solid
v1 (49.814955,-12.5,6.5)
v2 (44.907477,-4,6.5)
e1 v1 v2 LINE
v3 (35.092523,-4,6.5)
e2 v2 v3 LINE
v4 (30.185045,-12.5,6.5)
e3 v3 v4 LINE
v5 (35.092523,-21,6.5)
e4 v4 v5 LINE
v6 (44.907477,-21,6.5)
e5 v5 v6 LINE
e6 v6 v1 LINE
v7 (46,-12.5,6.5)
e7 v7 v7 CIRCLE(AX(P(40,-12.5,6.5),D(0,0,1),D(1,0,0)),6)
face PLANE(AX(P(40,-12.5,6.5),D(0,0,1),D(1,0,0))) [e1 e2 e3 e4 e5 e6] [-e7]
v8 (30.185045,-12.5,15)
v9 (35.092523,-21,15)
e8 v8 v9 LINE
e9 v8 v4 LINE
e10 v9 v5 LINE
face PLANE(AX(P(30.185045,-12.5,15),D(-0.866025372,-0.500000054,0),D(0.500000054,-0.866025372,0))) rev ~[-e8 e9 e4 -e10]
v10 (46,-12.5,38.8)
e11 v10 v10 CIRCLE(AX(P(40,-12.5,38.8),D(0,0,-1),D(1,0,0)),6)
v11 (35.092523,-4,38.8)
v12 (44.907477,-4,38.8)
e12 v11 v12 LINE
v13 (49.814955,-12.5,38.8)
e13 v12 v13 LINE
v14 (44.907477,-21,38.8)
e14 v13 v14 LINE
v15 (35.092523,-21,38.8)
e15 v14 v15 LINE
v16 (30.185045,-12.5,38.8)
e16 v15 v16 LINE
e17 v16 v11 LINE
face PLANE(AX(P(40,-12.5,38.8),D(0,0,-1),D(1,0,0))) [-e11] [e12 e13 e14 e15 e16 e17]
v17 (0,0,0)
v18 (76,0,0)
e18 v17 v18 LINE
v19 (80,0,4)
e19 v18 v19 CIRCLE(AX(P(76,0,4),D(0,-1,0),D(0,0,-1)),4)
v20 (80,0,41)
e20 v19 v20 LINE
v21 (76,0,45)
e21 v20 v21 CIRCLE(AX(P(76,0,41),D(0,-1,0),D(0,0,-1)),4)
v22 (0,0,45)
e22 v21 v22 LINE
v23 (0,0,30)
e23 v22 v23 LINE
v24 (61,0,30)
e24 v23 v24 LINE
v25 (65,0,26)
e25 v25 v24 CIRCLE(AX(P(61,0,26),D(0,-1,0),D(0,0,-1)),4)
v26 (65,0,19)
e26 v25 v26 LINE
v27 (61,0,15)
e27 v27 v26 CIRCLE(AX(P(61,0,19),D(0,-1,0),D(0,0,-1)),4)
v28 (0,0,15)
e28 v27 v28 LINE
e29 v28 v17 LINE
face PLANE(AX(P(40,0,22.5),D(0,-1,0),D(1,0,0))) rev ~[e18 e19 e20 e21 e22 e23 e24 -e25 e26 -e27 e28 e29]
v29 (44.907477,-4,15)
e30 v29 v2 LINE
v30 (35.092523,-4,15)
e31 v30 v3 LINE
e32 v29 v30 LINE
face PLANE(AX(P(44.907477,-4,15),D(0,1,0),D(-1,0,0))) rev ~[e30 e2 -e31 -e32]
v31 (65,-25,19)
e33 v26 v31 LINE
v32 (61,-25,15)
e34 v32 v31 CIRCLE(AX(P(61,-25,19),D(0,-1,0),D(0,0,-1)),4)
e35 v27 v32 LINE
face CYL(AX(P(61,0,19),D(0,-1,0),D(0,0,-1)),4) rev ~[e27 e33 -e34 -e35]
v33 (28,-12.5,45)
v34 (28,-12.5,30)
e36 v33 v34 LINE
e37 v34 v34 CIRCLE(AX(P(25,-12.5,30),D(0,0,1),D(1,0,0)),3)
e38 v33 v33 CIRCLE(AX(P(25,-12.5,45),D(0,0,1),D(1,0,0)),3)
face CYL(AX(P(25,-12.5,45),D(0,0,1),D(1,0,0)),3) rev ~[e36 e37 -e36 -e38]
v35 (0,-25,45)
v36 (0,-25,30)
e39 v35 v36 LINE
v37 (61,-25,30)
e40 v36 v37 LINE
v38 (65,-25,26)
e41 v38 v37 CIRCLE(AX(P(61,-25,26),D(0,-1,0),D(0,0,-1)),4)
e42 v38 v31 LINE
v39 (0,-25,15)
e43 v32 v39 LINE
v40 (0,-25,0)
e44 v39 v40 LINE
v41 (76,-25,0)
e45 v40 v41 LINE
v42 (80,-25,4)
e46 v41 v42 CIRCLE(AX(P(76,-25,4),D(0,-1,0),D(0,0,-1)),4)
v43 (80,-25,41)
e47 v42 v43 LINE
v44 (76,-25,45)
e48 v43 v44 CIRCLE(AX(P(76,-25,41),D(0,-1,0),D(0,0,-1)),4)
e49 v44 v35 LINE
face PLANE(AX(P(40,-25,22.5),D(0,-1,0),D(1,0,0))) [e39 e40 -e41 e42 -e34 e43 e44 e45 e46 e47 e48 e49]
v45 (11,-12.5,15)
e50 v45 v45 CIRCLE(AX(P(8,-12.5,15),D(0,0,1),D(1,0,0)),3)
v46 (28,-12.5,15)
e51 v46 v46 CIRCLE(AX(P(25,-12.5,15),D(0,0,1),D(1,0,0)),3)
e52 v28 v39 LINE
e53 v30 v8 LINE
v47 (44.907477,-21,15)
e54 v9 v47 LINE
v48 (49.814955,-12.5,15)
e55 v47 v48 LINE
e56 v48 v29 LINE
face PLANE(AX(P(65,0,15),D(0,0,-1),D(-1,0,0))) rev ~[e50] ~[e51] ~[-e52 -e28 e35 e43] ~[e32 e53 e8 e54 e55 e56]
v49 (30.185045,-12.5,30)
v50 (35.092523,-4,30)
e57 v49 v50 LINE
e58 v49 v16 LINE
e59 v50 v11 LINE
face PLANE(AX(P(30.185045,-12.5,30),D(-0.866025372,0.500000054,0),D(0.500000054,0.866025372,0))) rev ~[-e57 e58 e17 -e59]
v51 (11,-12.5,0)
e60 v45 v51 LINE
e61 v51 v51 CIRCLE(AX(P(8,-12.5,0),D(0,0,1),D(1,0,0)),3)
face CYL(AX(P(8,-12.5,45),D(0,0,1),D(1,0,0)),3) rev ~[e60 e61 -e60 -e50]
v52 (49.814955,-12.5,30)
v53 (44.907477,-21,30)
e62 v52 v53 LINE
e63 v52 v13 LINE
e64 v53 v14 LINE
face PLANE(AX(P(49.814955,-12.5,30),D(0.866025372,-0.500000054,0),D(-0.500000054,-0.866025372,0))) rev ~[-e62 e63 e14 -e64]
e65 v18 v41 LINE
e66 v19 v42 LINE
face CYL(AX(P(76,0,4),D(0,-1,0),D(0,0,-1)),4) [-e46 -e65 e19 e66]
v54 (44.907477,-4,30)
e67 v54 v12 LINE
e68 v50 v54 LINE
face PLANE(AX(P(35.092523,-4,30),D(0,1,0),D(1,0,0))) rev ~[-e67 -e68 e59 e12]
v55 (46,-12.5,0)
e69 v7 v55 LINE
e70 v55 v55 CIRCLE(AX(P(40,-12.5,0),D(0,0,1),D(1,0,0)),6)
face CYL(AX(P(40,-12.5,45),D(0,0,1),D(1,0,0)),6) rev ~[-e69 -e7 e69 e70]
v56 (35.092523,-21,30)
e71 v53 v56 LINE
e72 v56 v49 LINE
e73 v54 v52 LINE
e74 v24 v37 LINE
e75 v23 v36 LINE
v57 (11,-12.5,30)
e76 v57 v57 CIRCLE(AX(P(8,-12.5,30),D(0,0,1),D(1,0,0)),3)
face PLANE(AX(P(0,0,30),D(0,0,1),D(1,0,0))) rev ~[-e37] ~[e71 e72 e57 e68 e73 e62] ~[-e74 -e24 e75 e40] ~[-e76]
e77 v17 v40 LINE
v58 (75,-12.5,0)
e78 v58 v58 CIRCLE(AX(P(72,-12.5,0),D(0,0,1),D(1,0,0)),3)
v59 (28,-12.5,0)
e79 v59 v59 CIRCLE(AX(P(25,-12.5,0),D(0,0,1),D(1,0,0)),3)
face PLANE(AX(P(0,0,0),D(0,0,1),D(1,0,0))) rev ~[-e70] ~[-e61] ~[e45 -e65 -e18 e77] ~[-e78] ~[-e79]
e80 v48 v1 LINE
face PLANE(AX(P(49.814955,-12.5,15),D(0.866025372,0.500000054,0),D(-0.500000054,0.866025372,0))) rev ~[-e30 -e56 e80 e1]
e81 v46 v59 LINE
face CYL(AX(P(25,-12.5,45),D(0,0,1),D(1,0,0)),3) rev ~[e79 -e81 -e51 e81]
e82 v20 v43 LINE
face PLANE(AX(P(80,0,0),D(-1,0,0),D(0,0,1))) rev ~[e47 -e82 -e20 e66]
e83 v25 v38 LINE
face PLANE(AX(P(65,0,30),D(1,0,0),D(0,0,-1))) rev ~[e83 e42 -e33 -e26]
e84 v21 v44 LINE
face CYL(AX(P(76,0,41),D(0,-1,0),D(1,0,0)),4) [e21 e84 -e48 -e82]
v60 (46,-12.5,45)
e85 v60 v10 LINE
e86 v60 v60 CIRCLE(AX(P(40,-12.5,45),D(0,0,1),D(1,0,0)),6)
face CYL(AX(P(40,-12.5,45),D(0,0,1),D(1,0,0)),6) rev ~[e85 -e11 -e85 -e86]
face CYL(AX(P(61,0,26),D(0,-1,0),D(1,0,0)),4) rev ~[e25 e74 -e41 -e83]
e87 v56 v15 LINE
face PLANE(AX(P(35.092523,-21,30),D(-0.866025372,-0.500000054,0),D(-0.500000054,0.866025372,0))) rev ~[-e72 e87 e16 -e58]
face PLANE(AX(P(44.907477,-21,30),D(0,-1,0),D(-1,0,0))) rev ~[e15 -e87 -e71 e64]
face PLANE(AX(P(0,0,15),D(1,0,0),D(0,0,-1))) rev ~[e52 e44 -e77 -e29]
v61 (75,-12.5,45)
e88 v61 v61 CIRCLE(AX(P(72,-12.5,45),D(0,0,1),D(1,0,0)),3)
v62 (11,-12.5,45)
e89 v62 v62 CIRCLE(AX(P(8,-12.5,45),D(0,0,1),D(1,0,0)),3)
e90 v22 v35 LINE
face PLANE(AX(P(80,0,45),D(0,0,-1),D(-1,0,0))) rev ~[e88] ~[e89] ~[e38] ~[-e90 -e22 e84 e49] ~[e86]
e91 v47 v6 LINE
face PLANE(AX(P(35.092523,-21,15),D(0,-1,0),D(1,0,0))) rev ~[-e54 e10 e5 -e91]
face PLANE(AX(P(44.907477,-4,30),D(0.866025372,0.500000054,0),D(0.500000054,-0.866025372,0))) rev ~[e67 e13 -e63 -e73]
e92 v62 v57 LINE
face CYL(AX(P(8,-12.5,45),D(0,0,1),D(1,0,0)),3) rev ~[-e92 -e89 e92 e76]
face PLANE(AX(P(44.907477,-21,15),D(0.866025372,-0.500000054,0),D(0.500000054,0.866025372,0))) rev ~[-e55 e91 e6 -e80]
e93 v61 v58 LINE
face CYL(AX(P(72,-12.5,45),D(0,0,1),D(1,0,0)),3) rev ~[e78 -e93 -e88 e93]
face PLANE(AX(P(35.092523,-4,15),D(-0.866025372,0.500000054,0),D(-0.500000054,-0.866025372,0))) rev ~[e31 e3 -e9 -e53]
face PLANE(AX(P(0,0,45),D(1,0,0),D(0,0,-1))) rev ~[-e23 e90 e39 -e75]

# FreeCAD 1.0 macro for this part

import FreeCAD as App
import Part
import Sketcher
from FreeCAD import Vector
Q = App.Units.Quantity


def edges_at(feature, points):
    """Names of the edges that pass closest to the given points."""
    edges = feature.Shape.Edges
    near = lambda p: min(range(len(edges)), key=lambda i: edges[i].distToShape(Part.Vertex(*p))[0])
    return sorted({f"Edge{near(p) + 1}" for p in points})


def add_polygon(sketch, points):
    """Adds a closed chain of lines whose ends are joined by coincident constraints."""
    first, n = sketch.GeometryCount, len(points)
    for a, b in zip(points, points[1:] + points[:1]):
        sketch.addGeometry(Part.LineSegment(App.Vector(*a, 0), App.Vector(*b, 0)), False)
    for i in range(n):
        sketch.addConstraint(Sketcher.Constraint("Coincident", first + i, 2, first + (i + 1) % n, 1))

doc = App.newDocument("Part")
body = doc.addObject("PartDesign::Body", "Body")

# Sketch on XZ plane
sketch1 = body.newObject("Sketcher::SketchObject", "Sketch")
sketch1.AttachmentSupport = (doc.getObject("XZ_Plane"), [""])
sketch1.MapMode = "FlatFace"
add_polygon(sketch1, [(0, 15), (0, 0), (80, 0), (80, 45), (0, 45), (0, 30), (65, 30), (65, 15)])  # lines 0-7
sketch1.addConstraint(Sketcher.Constraint("Vertical", 0))
sketch1.addConstraint(Sketcher.Constraint("Horizontal", 1))
sketch1.addConstraint(Sketcher.Constraint("Vertical", 2))
sketch1.addConstraint(Sketcher.Constraint("Horizontal", 3))
sketch1.addConstraint(Sketcher.Constraint("Vertical", 4))
sketch1.addConstraint(Sketcher.Constraint("Horizontal", 5))
sketch1.addConstraint(Sketcher.Constraint("Vertical", 6))
sketch1.addConstraint(Sketcher.Constraint("Horizontal", 7))
sketch1.addConstraint(Sketcher.Constraint("Coincident", 0, 2, -1, 1))
sketch1.addConstraint(Sketcher.Constraint("PointOnObject", 3, 2, -2))
sketch1.addConstraint(Sketcher.Constraint("Equal", 0, 4))
sketch1.addConstraint(Sketcher.Constraint("Equal", 4, 6))
sketch1.addConstraint(Sketcher.Constraint("DistanceX", 1, 1, 1, 2, 80.0))
sketch1.addConstraint(Sketcher.Constraint("DistanceX", 5, 1, 5, 2, 65.0))
sketch1.addConstraint(Sketcher.Constraint("DistanceY", 0, 2, 0, 1, 15.0))
pad1 = body.newObject("PartDesign::Pad", "Pad")
pad1.Profile = sketch1
pad1.Length = 25

# Sketch on XY plane
sketch2 = body.newObject("Sketcher::SketchObject", "Sketch001")
sketch2.AttachmentSupport = (doc.getObject("XY_Plane"), [""])
sketch2.MapMode = "FlatFace"
sketch2.AttachmentOffset = App.Placement(Vector(0, 0, 45), App.Rotation())
sketch2.addGeometry(Part.Circle(Vector(40, -12.5, 0), Vector(0, 0, 1), 6), False)
sketch2.addGeometry(Part.Circle(Vector(8, -12.5, 0), Vector(0, 0, 1), 3), False)
sketch2.addGeometry(Part.Circle(Vector(25, -12.5, 0), Vector(0, 0, 1), 3), False)
sketch2.addGeometry(Part.Circle(Vector(72, -12.5, 0), Vector(0, 0, 1), 3), False)
sketch2.addConstraint(Sketcher.Constraint("Equal", 1, 2))
sketch2.addConstraint(Sketcher.Constraint("Equal", 2, 3))
sketch2.addConstraint(Sketcher.Constraint("Horizontal", 0, 3, 1, 3))
sketch2.addConstraint(Sketcher.Constraint("Horizontal", 1, 3, 2, 3))
sketch2.addConstraint(Sketcher.Constraint("Horizontal", 2, 3, 3, 3))
sketch2.addConstraint(Sketcher.Constraint("Diameter", 0, 12.0))
sketch2.addConstraint(Sketcher.Constraint("Diameter", 1, 6.0))
sketch2.addConstraint(Sketcher.Constraint("DistanceX", -1, 1, 0, 3, 40.0))
sketch2.addConstraint(Sketcher.Constraint("DistanceX", -1, 1, 1, 3, 8.0))
sketch2.addConstraint(Sketcher.Constraint("DistanceX", -1, 1, 2, 3, 25.0))
sketch2.addConstraint(Sketcher.Constraint("DistanceX", -1, 1, 3, 3, 72.0))
sketch2.addConstraint(Sketcher.Constraint("DistanceY", 0, 3, -1, 1, 12.5))
pocket1 = body.newObject("PartDesign::Pocket", "Pocket")
pocket1.Profile = sketch2
pocket1.Type = "ThroughAll"

# Sketch on XY plane
sketch3 = body.newObject("Sketcher::SketchObject", "Sketch002")
sketch3.AttachmentSupport = (doc.getObject("XY_Plane"), [""])
sketch3.MapMode = "FlatFace"
sketch3.AttachmentOffset = App.Placement(Vector(0, 0, 30), App.Rotation())
add_polygon(sketch3, [(35.092523, -4), (44.907477, -4), (49.814955, -12.5), (44.907477, -21), (35.092523, -21), (30.185045, -12.5)])  # lines 0-5
sketch3.addGeometry(Part.Circle(Vector(40, -12.5, 0), Vector(0, 0, 1), 6), False)  # 6
sketch3.addConstraint(Sketcher.Constraint("Horizontal", 0))
sketch3.addConstraint(Sketcher.Constraint("Horizontal", 3))
sketch3.addConstraint(Sketcher.Constraint("Parallel", 1, 4))
sketch3.addConstraint(Sketcher.Constraint("Parallel", 2, 5))
sketch3.addConstraint(Sketcher.Constraint("Horizontal", 6, 3, 1, 2))
sketch3.addConstraint(Sketcher.Constraint("Horizontal", 1, 2, 4, 2))
sketch3.addConstraint(Sketcher.Constraint("Vertical", 0, 2, 2, 2))
sketch3.addConstraint(Sketcher.Constraint("Vertical", 3, 2, 5, 2))
sketch3.addConstraint(Sketcher.Constraint("Diameter", 6, 12.0))
sketch3.addConstraint(Sketcher.Constraint("Angle", 1, Q("-59.999996 deg")))
sketch3.addConstraint(Sketcher.Constraint("DistanceX", -1, 1, 6, 3, 40.0))
sketch3.addConstraint(Sketcher.Constraint("DistanceY", 0, 2, -1, 1, 4.0))
sketch3.addConstraint(Sketcher.Constraint("DistanceY", 2, 2, -1, 1, 21.0))
sketch3.addConstraint(Sketcher.Constraint("DistanceX", 0, 1, 0, 2, 9.814954))
sketch3.addConstraint(Sketcher.Constraint("DistanceX", -1, 1, 0, 2, 44.907477))
pocket2 = body.newObject("PartDesign::Pocket", "Pocket001")
pocket2.Profile = sketch3
pocket2.Length = 8.8
pocket2.Reversed = True

# Sketch on XY plane
sketch4 = body.newObject("Sketcher::SketchObject", "Sketch003")
sketch4.AttachmentSupport = (doc.getObject("XY_Plane"), [""])
sketch4.MapMode = "FlatFace"
sketch4.AttachmentOffset = App.Placement(Vector(0, 0, 15), App.Rotation())
add_polygon(sketch4, [(35.092523, -21), (44.907477, -21), (49.814955, -12.5), (44.907477, -4), (35.092523, -4), (30.185045, -12.5)])  # lines 0-5
sketch4.addGeometry(Part.Circle(Vector(40, -12.5, 0), Vector(0, 0, 1), 6), False)  # 6
sketch4.addConstraint(Sketcher.Constraint("Horizontal", 0))
sketch4.addConstraint(Sketcher.Constraint("Horizontal", 3))
sketch4.addConstraint(Sketcher.Constraint("Parallel", 1, 4))
sketch4.addConstraint(Sketcher.Constraint("Parallel", 2, 5))
sketch4.addConstraint(Sketcher.Constraint("Horizontal", 6, 3, 1, 2))
sketch4.addConstraint(Sketcher.Constraint("Horizontal", 1, 2, 4, 2))
sketch4.addConstraint(Sketcher.Constraint("Vertical", 0, 2, 2, 2))
sketch4.addConstraint(Sketcher.Constraint("Vertical", 3, 2, 5, 2))
sketch4.addConstraint(Sketcher.Constraint("Diameter", 6, 12.0))
sketch4.addConstraint(Sketcher.Constraint("Angle", 1, Q("59.999996 deg")))
sketch4.addConstraint(Sketcher.Constraint("DistanceX", -1, 1, 6, 3, 40.0))
sketch4.addConstraint(Sketcher.Constraint("DistanceY", 0, 2, -1, 1, 21.0))
sketch4.addConstraint(Sketcher.Constraint("DistanceY", 2, 2, -1, 1, 4.0))
sketch4.addConstraint(Sketcher.Constraint("DistanceX", 0, 1, 0, 2, 9.814954))
sketch4.addConstraint(Sketcher.Constraint("DistanceX", -1, 1, 0, 2, 44.907477))
pocket3 = body.newObject("PartDesign::Pocket", "Pocket002")
pocket3.Profile = sketch4
pocket3.Length = 8.5
doc.recompute()

fillet = body.newObject("PartDesign::Fillet", "Fillet")
fillet.Base = (pocket3, edges_at(pocket3, [
    (80, -12.5, 45),
    (80, -12.5, 0),
    (65, -12.5, 30),
    (65, -12.5, 15),
]))
fillet.Radius = 4

doc.recompute()
